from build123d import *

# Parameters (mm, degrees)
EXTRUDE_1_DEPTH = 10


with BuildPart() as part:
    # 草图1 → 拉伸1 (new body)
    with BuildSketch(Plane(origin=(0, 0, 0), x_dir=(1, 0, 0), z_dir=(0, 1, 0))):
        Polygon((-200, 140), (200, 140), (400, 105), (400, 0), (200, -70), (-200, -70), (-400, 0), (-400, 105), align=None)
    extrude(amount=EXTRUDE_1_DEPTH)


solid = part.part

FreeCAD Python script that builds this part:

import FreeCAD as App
import Part
import Sketcher
from FreeCAD import Vector

doc = App.newDocument("Part")
params = doc.addObject("Spreadsheet::Sheet", "Params")
for row, (alias, value) in enumerate([
    ("sketch1_width", "400 mm"),
    ("sketch1_height", "105 mm"),
    ("pad1_length", "10 mm"),
], start=1):
    params.set(f"A{row}", alias)
    params.set(f"B{row}", "=" + value)
    params.setAlias(f"B{row}", alias)

body = doc.addObject("PartDesign::Body", "Body")

sketch1 = body.newObject("Sketcher::SketchObject", "Sketch")
sketch1.AttachmentSupport = (doc.getObject("XZ_Plane"), [""])
sketch1.MapMode = "FlatFace"
sketch1.addGeometry([
    Part.LineSegment(Vector(200, -140, 0), Vector(-200, -140, 0)),
    Part.LineSegment(Vector(-200, -140, 0), Vector(-400, -105, 0)),
    Part.LineSegment(Vector(-400, -105, 0), Vector(-400, 0, 0)),
    Part.LineSegment(Vector(-400, 0, 0), Vector(-200, 70, 0)),
    Part.LineSegment(Vector(-200, 70, 0), Vector(200, 70, 0)),
    Part.LineSegment(Vector(200, 70, 0), Vector(400, 0, 0)),
    Part.LineSegment(Vector(400, 0, 0), Vector(400, -105, 0)),
    Part.LineSegment(Vector(400, -105, 0), Vector(200, -140, 0)),
], False)
sketch1.addConstraint([
    Sketcher.Constraint("Coincident", 0, 2, 1, 1),
    Sketcher.Constraint("Coincident", 1, 2, 2, 1),
    Sketcher.Constraint("Coincident", 2, 2, 3, 1),
    Sketcher.Constraint("Coincident", 3, 2, 4, 1),
    Sketcher.Constraint("Coincident", 4, 2, 5, 1),
    Sketcher.Constraint("Coincident", 5, 2, 6, 1),
    Sketcher.Constraint("Coincident", 6, 2, 7, 1),
    Sketcher.Constraint("Coincident", 7, 2, 0, 1),
    Sketcher.Constraint("Horizontal", 0),
    Sketcher.Constraint("Vertical", 2),
    Sketcher.Constraint("Horizontal", 4),
    Sketcher.Constraint("Vertical", 6),
    Sketcher.Constraint("Symmetric", 2, 2, 5, 2, -1, 1),
    Sketcher.Constraint("PointOnObject", 2, 2, -1),
    Sketcher.Constraint("Horizontal", 1, 2, 6, 2),
    Sketcher.Constraint("Vertical", 0, 2, 3, 2),
    Sketcher.Constraint("Vertical", 4, 2, 7, 2),
    Sketcher.Constraint("Equal", 3, 5),
    Sketcher.Constraint("DistanceX", 0, 2, 0, 1, 400.0),
    Sketcher.Constraint("DistanceY", 2, 1, 2, 2, 105.0),
    Sketcher.Constraint("DistanceY", 0, 2, -1, 1, 140.0),
    Sketcher.Constraint("DistanceX", 1, 2, -1, 1, 400.0),
    Sketcher.Constraint("DistanceY", -1, 1, 3, 2, 70.0),
])
sketch1.setExpression("Constraints[18]", "Params.sketch1_width")
sketch1.setExpression("Constraints[19]", "Params.sketch1_height")
pad1 = body.newObject("PartDesign::Pad", "Pad")
pad1.Profile = sketch1
pad1.setExpression("Length", "Params.pad1_length")
pad1.Reversed = True

doc.recompute()
